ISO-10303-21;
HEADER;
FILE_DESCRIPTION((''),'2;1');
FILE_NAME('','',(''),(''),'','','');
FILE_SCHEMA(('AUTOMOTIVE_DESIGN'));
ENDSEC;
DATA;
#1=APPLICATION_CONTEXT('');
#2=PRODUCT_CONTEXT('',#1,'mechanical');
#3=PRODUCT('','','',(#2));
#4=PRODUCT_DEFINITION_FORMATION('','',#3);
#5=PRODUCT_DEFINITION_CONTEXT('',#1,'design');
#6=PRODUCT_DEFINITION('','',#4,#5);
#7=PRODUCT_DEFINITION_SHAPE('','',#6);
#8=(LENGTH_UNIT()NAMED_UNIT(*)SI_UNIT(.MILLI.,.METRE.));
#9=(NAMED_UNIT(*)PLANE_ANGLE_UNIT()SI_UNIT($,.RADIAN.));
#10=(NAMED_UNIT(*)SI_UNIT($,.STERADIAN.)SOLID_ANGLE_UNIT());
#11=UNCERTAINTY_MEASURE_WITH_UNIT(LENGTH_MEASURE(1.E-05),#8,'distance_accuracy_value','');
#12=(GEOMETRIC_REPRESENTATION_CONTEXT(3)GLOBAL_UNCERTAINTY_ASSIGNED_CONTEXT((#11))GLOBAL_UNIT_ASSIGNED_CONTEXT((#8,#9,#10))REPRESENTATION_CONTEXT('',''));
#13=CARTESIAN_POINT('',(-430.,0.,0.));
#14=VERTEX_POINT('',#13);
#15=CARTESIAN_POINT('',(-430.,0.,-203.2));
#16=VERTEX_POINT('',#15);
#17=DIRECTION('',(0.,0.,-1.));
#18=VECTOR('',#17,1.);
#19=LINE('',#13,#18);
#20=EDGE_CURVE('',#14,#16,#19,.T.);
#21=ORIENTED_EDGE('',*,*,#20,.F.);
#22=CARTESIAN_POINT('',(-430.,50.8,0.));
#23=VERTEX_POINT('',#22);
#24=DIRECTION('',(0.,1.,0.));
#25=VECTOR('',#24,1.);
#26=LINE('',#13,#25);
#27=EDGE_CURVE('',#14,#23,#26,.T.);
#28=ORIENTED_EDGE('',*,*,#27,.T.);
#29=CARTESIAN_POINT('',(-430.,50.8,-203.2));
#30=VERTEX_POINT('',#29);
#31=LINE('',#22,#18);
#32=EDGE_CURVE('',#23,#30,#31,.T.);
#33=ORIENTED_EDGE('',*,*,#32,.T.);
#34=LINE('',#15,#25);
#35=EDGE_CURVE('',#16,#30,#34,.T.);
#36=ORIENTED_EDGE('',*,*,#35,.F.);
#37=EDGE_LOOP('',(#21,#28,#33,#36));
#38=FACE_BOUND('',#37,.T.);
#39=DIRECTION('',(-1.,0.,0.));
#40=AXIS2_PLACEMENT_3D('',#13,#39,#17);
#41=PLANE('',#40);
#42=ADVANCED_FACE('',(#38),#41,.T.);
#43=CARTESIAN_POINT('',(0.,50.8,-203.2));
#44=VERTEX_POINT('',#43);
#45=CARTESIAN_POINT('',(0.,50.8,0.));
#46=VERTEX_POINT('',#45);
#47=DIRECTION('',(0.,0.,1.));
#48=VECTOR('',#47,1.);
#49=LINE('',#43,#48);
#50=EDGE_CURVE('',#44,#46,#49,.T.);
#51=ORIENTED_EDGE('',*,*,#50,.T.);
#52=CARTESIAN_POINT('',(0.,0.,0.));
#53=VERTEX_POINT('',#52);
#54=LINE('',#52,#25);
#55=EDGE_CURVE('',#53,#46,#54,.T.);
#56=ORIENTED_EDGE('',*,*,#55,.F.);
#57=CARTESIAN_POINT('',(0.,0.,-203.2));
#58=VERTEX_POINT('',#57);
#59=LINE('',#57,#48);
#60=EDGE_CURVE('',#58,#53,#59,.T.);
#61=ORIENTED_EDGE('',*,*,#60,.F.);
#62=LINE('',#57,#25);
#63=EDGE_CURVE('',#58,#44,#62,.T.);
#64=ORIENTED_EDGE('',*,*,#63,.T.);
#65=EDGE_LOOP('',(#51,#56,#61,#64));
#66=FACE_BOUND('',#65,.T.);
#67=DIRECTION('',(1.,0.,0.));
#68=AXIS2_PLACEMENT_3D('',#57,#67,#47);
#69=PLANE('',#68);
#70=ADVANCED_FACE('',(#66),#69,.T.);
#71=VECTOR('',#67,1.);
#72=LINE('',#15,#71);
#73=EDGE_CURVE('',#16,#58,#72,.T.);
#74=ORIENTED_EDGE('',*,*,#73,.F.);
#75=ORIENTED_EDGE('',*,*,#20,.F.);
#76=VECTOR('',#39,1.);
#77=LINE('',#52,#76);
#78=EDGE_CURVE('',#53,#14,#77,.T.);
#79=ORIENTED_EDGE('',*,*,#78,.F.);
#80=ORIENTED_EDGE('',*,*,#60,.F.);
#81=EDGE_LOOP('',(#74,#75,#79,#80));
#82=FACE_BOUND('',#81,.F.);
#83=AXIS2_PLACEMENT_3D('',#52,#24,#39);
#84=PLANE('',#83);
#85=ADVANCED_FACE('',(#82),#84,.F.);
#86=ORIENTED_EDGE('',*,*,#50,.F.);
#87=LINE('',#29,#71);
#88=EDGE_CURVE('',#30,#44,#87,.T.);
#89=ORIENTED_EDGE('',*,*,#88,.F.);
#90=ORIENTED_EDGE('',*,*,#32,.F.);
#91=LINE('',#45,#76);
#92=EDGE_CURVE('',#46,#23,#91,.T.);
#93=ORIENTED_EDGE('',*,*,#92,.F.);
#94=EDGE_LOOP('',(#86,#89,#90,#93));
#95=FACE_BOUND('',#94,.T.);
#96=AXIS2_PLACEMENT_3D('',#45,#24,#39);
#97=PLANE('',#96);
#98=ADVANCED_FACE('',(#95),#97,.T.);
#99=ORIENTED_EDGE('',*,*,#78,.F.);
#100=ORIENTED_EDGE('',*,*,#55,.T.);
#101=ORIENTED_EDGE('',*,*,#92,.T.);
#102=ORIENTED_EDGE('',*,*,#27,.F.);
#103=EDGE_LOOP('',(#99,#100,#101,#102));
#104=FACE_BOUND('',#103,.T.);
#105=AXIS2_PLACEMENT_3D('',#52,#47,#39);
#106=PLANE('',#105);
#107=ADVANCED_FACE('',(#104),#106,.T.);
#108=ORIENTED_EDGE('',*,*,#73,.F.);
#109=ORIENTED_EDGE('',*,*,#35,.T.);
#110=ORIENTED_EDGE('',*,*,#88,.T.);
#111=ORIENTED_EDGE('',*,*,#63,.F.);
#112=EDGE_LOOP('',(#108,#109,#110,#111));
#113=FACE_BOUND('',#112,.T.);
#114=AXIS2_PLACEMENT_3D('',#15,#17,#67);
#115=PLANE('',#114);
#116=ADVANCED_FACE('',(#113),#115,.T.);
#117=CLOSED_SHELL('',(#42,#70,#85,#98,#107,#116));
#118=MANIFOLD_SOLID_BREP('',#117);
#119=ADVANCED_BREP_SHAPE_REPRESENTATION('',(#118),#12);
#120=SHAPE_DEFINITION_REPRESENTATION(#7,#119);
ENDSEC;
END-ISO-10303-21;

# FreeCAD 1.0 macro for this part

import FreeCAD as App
import Part
import Sketcher

V = App.Vector
Q = App.Units.Quantity

doc = App.newDocument("Part")
body = doc.addObject("PartDesign::Body", "Body")

# Sketch on XZ plane
sketch1 = doc.addObject("Sketcher::SketchObject", "Sketch")
body.addObject(sketch1)
sketch1.AttachmentSupport = (doc.XZ_Plane, [""])
sketch1.MapMode = "FlatFace"
sketch1.addGeometry(Part.LineSegment(V(-430, 0, 0), V(0, 0, 0)), False)
sketch1.addGeometry(Part.LineSegment(V(0, 0, 0), V(0, -203, 0)), False)
sketch1.addGeometry(Part.LineSegment(V(0, -203, 0), V(-430, -203, 0)), False)
sketch1.addGeometry(Part.LineSegment(V(-430, -203, 0), V(-430, 0, 0)), False)
sketch1.addConstraint(Sketcher.Constraint("Coincident", 0, 2, 1, 1))
sketch1.addConstraint(Sketcher.Constraint("Coincident", 1, 2, 2, 1))
sketch1.addConstraint(Sketcher.Constraint("Coincident", 2, 2, 3, 1))
sketch1.addConstraint(Sketcher.Constraint("Coincident", 3, 2, 0, 1))
sketch1.addConstraint(Sketcher.Constraint("Horizontal", 0))
sketch1.addConstraint(Sketcher.Constraint("Vertical", 1))
sketch1.addConstraint(Sketcher.Constraint("Horizontal", 2))
sketch1.addConstraint(Sketcher.Constraint("Vertical", 3))
sketch1.addConstraint(Sketcher.Constraint("Coincident", 0, 2, -1, 1))
sketch1.addConstraint(Sketcher.Constraint("DistanceY", 1, 2, 1, 1, Q("8 in")))
sketch1.addConstraint(Sketcher.Constraint("DistanceX", 0, 1, 0, 2, 430.0))
pad1 = doc.addObject("PartDesign::Pad", "Pad")
body.addObject(pad1)
pad1.Profile = sketch1
pad1.Length = Q("2 in")
pad1.Reversed = True

doc.recompute()
